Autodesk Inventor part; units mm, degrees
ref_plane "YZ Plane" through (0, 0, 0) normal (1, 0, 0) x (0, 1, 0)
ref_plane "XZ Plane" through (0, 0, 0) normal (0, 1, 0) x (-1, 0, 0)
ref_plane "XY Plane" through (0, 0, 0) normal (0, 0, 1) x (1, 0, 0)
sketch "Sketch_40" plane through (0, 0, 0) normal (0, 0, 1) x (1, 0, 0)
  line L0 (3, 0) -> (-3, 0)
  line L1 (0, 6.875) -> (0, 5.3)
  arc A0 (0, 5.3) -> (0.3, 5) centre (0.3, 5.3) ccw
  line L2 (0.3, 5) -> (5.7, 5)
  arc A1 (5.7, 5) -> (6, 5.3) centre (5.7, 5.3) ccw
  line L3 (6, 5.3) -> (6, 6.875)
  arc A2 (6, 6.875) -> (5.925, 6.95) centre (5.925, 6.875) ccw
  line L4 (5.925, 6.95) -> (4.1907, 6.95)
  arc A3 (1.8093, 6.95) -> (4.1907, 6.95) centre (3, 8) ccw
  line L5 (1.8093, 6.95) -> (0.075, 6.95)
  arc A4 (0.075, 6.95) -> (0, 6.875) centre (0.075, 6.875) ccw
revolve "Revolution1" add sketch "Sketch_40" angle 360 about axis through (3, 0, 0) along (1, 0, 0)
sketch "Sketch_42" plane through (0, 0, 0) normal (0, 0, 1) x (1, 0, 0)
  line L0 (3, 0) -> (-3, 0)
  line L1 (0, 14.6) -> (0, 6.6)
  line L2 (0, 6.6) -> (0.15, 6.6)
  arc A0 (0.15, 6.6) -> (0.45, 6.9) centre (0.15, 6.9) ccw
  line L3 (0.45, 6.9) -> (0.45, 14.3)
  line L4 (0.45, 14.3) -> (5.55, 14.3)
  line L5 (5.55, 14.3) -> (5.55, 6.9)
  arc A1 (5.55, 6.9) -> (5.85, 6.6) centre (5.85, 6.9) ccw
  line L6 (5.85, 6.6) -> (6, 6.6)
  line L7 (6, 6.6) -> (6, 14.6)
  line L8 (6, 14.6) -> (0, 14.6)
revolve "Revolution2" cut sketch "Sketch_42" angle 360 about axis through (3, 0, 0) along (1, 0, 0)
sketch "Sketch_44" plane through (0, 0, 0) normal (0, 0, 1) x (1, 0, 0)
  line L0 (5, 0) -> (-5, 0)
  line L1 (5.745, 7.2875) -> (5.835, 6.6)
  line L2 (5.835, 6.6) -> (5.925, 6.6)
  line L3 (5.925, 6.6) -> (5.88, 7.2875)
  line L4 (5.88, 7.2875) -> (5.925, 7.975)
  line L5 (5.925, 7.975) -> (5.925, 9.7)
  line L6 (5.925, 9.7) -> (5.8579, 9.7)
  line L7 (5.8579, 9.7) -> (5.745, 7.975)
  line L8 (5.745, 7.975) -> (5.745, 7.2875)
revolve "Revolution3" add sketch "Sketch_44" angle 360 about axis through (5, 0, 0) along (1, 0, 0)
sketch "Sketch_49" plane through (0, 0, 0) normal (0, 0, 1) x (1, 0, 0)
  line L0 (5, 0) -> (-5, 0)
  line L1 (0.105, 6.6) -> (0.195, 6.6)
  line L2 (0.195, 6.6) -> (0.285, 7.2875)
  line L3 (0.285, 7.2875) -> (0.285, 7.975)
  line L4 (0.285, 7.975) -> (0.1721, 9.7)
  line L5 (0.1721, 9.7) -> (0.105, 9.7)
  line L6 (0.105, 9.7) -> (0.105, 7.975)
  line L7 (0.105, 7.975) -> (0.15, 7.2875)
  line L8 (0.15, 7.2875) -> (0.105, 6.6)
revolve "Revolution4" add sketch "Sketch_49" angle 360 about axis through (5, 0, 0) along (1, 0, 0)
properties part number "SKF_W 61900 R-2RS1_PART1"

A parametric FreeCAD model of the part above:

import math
import FreeCAD as App
import Part
import Sketcher


def add_polygon(sketch, points):
    """Adds a closed chain of lines whose ends are joined by coincident constraints."""
    first, n = sketch.GeometryCount, len(points)
    for a, b in zip(points, points[1:] + points[:1]):
        sketch.addGeometry(Part.LineSegment(App.Vector(*a, 0), App.Vector(*b, 0)), False)
    for i in range(n):
        sketch.addConstraint(Sketcher.Constraint("Coincident", first + i, 2, first + (i + 1) % n, 1))

doc = App.newDocument("Part")
body = doc.addObject("PartDesign::Body", "Body")

# Sketch on XY plane
sketch1 = doc.addObject("Sketcher::SketchObject", "Sketch")
body.addObject(sketch1)
sketch1.AttachmentSupport = (doc.XY_Plane, [""])
sketch1.MapMode = "FlatFace"
sketch1.addGeometry(Part.ArcOfCircle(Part.Circle(App.Vector(0.07, 6.88, 0), App.Vector(0, 0, 1), 0.08), math.radians(90), math.radians(180)), False)
sketch1.addGeometry(Part.LineSegment(App.Vector(0, 6.88, 0), App.Vector(0, 5.3, 0)), False)
sketch1.addGeometry(Part.ArcOfCircle(Part.Circle(App.Vector(0.3, 5.3, 0), App.Vector(0, 0, 1), 0.3), math.radians(180), math.radians(270)), False)
sketch1.addGeometry(Part.LineSegment(App.Vector(0.3, 5, 0), App.Vector(5.7, 5, 0)), False)
sketch1.addGeometry(Part.ArcOfCircle(Part.Circle(App.Vector(5.7, 5.3, 0), App.Vector(0, 0, 1), 0.3), math.radians(-90), math.radians(0)), False)
sketch1.addGeometry(Part.LineSegment(App.Vector(6, 5.3, 0), App.Vector(6, 6.88, 0)), False)
sketch1.addGeometry(Part.ArcOfCircle(Part.Circle(App.Vector(5.92, 6.88, 0), App.Vector(0, 0, 1), 0.08), math.radians(0), math.radians(90)), False)
sketch1.addGeometry(Part.LineSegment(App.Vector(5.92, 6.95, 0), App.Vector(4.19, 6.95, 0)), False)
sketch1.addGeometry(Part.ArcOfCircle(Part.Circle(App.Vector(3, 8, 0), App.Vector(0, 0, 1), 1.59), math.radians(-139), math.radians(-41)), False)
sketch1.addGeometry(Part.LineSegment(App.Vector(1.81, 6.95, 0), App.Vector(0.07, 6.95, 0)), False)
sketch1.addConstraint(Sketcher.Constraint("Tangent", 0, 2, 1, 1))
sketch1.addConstraint(Sketcher.Constraint("Tangent", 1, 2, 2, 1))
sketch1.addConstraint(Sketcher.Constraint("Tangent", 2, 2, 3, 1))
sketch1.addConstraint(Sketcher.Constraint("Tangent", 3, 2, 4, 1))
sketch1.addConstraint(Sketcher.Constraint("Tangent", 4, 2, 5, 1))
sketch1.addConstraint(Sketcher.Constraint("Tangent", 5, 2, 6, 1))
sketch1.addConstraint(Sketcher.Constraint("Tangent", 6, 2, 7, 1))
sketch1.addConstraint(Sketcher.Constraint("Coincident", 7, 2, 8, 2))
sketch1.addConstraint(Sketcher.Constraint("Coincident", 8, 1, 9, 1))
sketch1.addConstraint(Sketcher.Constraint("Tangent", 9, 2, 0, 1))
sketch1.addConstraint(Sketcher.Constraint("Vertical", 1))
sketch1.addConstraint(Sketcher.Constraint("Horizontal", 3))
sketch1.addConstraint(Sketcher.Constraint("Vertical", 5))
sketch1.addConstraint(Sketcher.Constraint("Horizontal", 7))
sketch1.addConstraint(Sketcher.Constraint("Horizontal", 9))
sketch1.addConstraint(Sketcher.Constraint("Equal", 2, 4))
sketch1.addConstraint(Sketcher.Constraint("Equal", 0, 6))
sketch1.addConstraint(Sketcher.Constraint("PointOnObject", 0, 2, -2))
sketch1.addConstraint(Sketcher.Constraint("Horizontal", 0, 3, 6, 3))
sketch1.addConstraint(Sketcher.Constraint("Equal", 7, 9))
sketch1.addConstraint(Sketcher.Constraint("Radius", 2, 0.3))
sketch1.addConstraint(Sketcher.Constraint("DistanceX", 3, 1, 3, 2, 5.4))
sketch1.addConstraint(Sketcher.Constraint("DistanceY", -1, 1, 8, 3, 8.0))
sketch1.addConstraint(Sketcher.Constraint("DistanceY", -1, 1, 2, 2, 5.0))
sketch1.addConstraint(Sketcher.Constraint("Radius", 0, 0.075))
sketch1.addConstraint(Sketcher.Constraint("Radius", 8, 1.5875))
sketch1.addConstraint(Sketcher.Constraint("DistanceY", 1, 2, 1, 1, 1.575))
revolution = doc.addObject("PartDesign::Revolution", "Revolution")
body.addObject(revolution)
revolution.Profile = sketch1
revolution.ReferenceAxis = (sketch1, ["H_Axis"])
revolution.Angle = 360

# Sketch on XY plane
sketch2 = doc.addObject("Sketcher::SketchObject", "Sketch001")
body.addObject(sketch2)
sketch2.AttachmentSupport = (doc.XY_Plane, [""])
sketch2.MapMode = "FlatFace"
sketch2.addGeometry(Part.LineSegment(App.Vector(6, 14.6, 0), App.Vector(0, 14.6, 0)), False)
sketch2.addGeometry(Part.LineSegment(App.Vector(0, 14.6, 0), App.Vector(0, 6.6, 0)), False)
sketch2.addGeometry(Part.LineSegment(App.Vector(0, 6.6, 0), App.Vector(0.15, 6.6, 0)), False)
sketch2.addGeometry(Part.ArcOfCircle(Part.Circle(App.Vector(0.15, 6.9, 0), App.Vector(0, 0, 1), 0.3), math.radians(-90), math.radians(0)), False)
sketch2.addGeometry(Part.LineSegment(App.Vector(0.45, 6.9, 0), App.Vector(0.45, 14.3, 0)), False)
sketch2.addGeometry(Part.LineSegment(App.Vector(0.45, 14.3, 0), App.Vector(5.55, 14.3, 0)), False)
sketch2.addGeometry(Part.LineSegment(App.Vector(5.55, 14.3, 0), App.Vector(5.55, 6.9, 0)), False)
sketch2.addGeometry(Part.ArcOfCircle(Part.Circle(App.Vector(5.85, 6.9, 0), App.Vector(0, 0, 1), 0.3), math.radians(180), math.radians(270)), False)
sketch2.addGeometry(Part.LineSegment(App.Vector(5.85, 6.6, 0), App.Vector(6, 6.6, 0)), False)
sketch2.addGeometry(Part.LineSegment(App.Vector(6, 6.6, 0), App.Vector(6, 14.6, 0)), False)
sketch2.addConstraint(Sketcher.Constraint("Coincident", 0, 2, 1, 1))
sketch2.addConstraint(Sketcher.Constraint("Coincident", 1, 2, 2, 1))
sketch2.addConstraint(Sketcher.Constraint("Tangent", 2, 2, 3, 1))
sketch2.addConstraint(Sketcher.Constraint("Tangent", 3, 2, 4, 1))
sketch2.addConstraint(Sketcher.Constraint("Coincident", 4, 2, 5, 1))
sketch2.addConstraint(Sketcher.Constraint("Coincident", 5, 2, 6, 1))
sketch2.addConstraint(Sketcher.Constraint("Tangent", 6, 2, 7, 1))
sketch2.addConstraint(Sketcher.Constraint("Tangent", 7, 2, 8, 1))
sketch2.addConstraint(Sketcher.Constraint("Coincident", 8, 2, 9, 1))
sketch2.addConstraint(Sketcher.Constraint("Coincident", 9, 2, 0, 1))
sketch2.addConstraint(Sketcher.Constraint("Horizontal", 0))
sketch2.addConstraint(Sketcher.Constraint("Vertical", 1))
sketch2.addConstraint(Sketcher.Constraint("Horizontal", 2))
sketch2.addConstraint(Sketcher.Constraint("Vertical", 4))
sketch2.addConstraint(Sketcher.Constraint("Horizontal", 5))
sketch2.addConstraint(Sketcher.Constraint("Vertical", 6))
sketch2.addConstraint(Sketcher.Constraint("Horizontal", 8))
sketch2.addConstraint(Sketcher.Constraint("Vertical", 9))
sketch2.addConstraint(Sketcher.Constraint("Equal", 3, 7))
sketch2.addConstraint(Sketcher.Constraint("PointOnObject", 0, 2, -2))
sketch2.addConstraint(Sketcher.Constraint("Horizontal", 3, 3, 7, 3))
sketch2.addConstraint(Sketcher.Constraint("Equal", 2, 8))
sketch2.addConstraint(Sketcher.Constraint("Radius", 3, 0.3))
sketch2.addConstraint(Sketcher.Constraint("DistanceX", 0, 2, 0, 1, 6.0))
sketch2.addConstraint(Sketcher.Constraint("DistanceY", 1, 2, 1, 1, 8.0))
sketch2.addConstraint(Sketcher.Constraint("DistanceX", 5, 1, 5, 2, 5.1))
sketch2.addConstraint(Sketcher.Constraint("DistanceY", 4, 1, 4, 2, 7.4))
sketch2.addConstraint(Sketcher.Constraint("DistanceY", -1, 1, 3, 3, 6.9))
groove = doc.addObject("PartDesign::Groove", "Groove")
body.addObject(groove)
groove.Profile = sketch2
groove.ReferenceAxis = (sketch2, ["H_Axis"])
groove.Angle = 360

# Sketch on XY plane
sketch3 = doc.addObject("Sketcher::SketchObject", "Sketch002")
body.addObject(sketch3)
sketch3.AttachmentSupport = (doc.XY_Plane, [""])
sketch3.MapMode = "FlatFace"
add_polygon(sketch3, [(5.75, 7.97), (5.75, 7.29), (5.83, 6.6), (5.92, 6.6), (5.88, 7.29), (5.92, 7.97), (5.92, 9.7), (5.86, 9.7)])  # lines 0-7
sketch3.addConstraint(Sketcher.Constraint("Vertical", 0))
sketch3.addConstraint(Sketcher.Constraint("Horizontal", 2))
sketch3.addConstraint(Sketcher.Constraint("Vertical", 5))
sketch3.addConstraint(Sketcher.Constraint("Horizontal", 6))
sketch3.addConstraint(Sketcher.Constraint("Parallel", 4, 7))
sketch3.addConstraint(Sketcher.Constraint("Horizontal", 0, 2, 3, 2))
sketch3.addConstraint(Sketcher.Constraint("Horizontal", 4, 2, 7, 2))
sketch3.addConstraint(Sketcher.Constraint("Vertical", 2, 2, 4, 2))
sketch3.addConstraint(Sketcher.Constraint("Equal", 3, 4))
sketch3.addConstraint(Sketcher.Constraint("DistanceX", 2, 1, 2, 2, 0.09))
sketch3.addConstraint(Sketcher.Constraint("DistanceY", -1, 1, 1, 2, 6.6))
sketch3.addConstraint(Sketcher.Constraint("DistanceY", -1, 1, 5, 2, 9.7))
sketch3.addConstraint(Sketcher.Constraint("DistanceX", 6, 2, 6, 1, 0.067))
sketch3.addConstraint(Sketcher.Constraint("DistanceY", 5, 1, 5, 2, 1.725))
sketch3.addConstraint(Sketcher.Constraint("DistanceX", -1, 1, 3, 2, 5.88))
sketch3.addConstraint(Sketcher.Constraint("DistanceX", 0, 2, 1, 2, 0.09))
revolution2 = doc.addObject("PartDesign::Revolution", "Revolution001")
body.addObject(revolution2)
revolution2.Profile = sketch3
revolution2.ReferenceAxis = (sketch3, ["H_Axis"])
revolution2.Angle = 360

# Sketch on XY plane
sketch4 = doc.addObject("Sketcher::SketchObject", "Sketch003")
body.addObject(sketch4)
sketch4.AttachmentSupport = (doc.XY_Plane, [""])
sketch4.MapMode = "FlatFace"
add_polygon(sketch4, [(0.15, 7.29), (0.1, 6.6), (0.2, 6.6), (0.28, 7.29), (0.28, 7.97), (0.17, 9.7), (0.1, 9.7), (0.1, 7.97)])  # lines 0-7
sketch4.addConstraint(Sketcher.Constraint("Horizontal", 1))
sketch4.addConstraint(Sketcher.Constraint("Vertical", 3))
sketch4.addConstraint(Sketcher.Constraint("Horizontal", 5))
sketch4.addConstraint(Sketcher.Constraint("Vertical", 6))
sketch4.addConstraint(Sketcher.Constraint("Parallel", 4, 7))
sketch4.addConstraint(Sketcher.Constraint("Horizontal", 3, 2, 6, 2))
sketch4.addConstraint(Sketcher.Constraint("Horizontal", 2, 2, 7, 2))
sketch4.addConstraint(Sketcher.Constraint("Vertical", 0, 2, 5, 2))
sketch4.addConstraint(Sketcher.Constraint("Equal", 0, 7))
sketch4.addConstraint(Sketcher.Constraint("DistanceX", 1, 1, 1, 2, 0.09))
sketch4.addConstraint(Sketcher.Constraint("DistanceY", -1, 1, 0, 2, 6.6))
sketch4.addConstraint(Sketcher.Constraint("DistanceY", -1, 1, 4, 2, 9.7))
sketch4.addConstraint(Sketcher.Constraint("DistanceX", 5, 2, 5, 1, 0.067))
sketch4.addConstraint(Sketcher.Constraint("DistanceY", 6, 2, 6, 1, 1.725))
sketch4.addConstraint(Sketcher.Constraint("DistanceX", -1, 1, 7, 2, 0.15))
sketch4.addConstraint(Sketcher.Constraint("DistanceX", 1, 2, 2, 2, 0.09))
revolution3 = doc.addObject("PartDesign::Revolution", "Revolution002")
body.addObject(revolution3)
revolution3.Profile = sketch4
revolution3.ReferenceAxis = (sketch4, ["H_Axis"])
revolution3.Angle = 360

doc.recompute()
